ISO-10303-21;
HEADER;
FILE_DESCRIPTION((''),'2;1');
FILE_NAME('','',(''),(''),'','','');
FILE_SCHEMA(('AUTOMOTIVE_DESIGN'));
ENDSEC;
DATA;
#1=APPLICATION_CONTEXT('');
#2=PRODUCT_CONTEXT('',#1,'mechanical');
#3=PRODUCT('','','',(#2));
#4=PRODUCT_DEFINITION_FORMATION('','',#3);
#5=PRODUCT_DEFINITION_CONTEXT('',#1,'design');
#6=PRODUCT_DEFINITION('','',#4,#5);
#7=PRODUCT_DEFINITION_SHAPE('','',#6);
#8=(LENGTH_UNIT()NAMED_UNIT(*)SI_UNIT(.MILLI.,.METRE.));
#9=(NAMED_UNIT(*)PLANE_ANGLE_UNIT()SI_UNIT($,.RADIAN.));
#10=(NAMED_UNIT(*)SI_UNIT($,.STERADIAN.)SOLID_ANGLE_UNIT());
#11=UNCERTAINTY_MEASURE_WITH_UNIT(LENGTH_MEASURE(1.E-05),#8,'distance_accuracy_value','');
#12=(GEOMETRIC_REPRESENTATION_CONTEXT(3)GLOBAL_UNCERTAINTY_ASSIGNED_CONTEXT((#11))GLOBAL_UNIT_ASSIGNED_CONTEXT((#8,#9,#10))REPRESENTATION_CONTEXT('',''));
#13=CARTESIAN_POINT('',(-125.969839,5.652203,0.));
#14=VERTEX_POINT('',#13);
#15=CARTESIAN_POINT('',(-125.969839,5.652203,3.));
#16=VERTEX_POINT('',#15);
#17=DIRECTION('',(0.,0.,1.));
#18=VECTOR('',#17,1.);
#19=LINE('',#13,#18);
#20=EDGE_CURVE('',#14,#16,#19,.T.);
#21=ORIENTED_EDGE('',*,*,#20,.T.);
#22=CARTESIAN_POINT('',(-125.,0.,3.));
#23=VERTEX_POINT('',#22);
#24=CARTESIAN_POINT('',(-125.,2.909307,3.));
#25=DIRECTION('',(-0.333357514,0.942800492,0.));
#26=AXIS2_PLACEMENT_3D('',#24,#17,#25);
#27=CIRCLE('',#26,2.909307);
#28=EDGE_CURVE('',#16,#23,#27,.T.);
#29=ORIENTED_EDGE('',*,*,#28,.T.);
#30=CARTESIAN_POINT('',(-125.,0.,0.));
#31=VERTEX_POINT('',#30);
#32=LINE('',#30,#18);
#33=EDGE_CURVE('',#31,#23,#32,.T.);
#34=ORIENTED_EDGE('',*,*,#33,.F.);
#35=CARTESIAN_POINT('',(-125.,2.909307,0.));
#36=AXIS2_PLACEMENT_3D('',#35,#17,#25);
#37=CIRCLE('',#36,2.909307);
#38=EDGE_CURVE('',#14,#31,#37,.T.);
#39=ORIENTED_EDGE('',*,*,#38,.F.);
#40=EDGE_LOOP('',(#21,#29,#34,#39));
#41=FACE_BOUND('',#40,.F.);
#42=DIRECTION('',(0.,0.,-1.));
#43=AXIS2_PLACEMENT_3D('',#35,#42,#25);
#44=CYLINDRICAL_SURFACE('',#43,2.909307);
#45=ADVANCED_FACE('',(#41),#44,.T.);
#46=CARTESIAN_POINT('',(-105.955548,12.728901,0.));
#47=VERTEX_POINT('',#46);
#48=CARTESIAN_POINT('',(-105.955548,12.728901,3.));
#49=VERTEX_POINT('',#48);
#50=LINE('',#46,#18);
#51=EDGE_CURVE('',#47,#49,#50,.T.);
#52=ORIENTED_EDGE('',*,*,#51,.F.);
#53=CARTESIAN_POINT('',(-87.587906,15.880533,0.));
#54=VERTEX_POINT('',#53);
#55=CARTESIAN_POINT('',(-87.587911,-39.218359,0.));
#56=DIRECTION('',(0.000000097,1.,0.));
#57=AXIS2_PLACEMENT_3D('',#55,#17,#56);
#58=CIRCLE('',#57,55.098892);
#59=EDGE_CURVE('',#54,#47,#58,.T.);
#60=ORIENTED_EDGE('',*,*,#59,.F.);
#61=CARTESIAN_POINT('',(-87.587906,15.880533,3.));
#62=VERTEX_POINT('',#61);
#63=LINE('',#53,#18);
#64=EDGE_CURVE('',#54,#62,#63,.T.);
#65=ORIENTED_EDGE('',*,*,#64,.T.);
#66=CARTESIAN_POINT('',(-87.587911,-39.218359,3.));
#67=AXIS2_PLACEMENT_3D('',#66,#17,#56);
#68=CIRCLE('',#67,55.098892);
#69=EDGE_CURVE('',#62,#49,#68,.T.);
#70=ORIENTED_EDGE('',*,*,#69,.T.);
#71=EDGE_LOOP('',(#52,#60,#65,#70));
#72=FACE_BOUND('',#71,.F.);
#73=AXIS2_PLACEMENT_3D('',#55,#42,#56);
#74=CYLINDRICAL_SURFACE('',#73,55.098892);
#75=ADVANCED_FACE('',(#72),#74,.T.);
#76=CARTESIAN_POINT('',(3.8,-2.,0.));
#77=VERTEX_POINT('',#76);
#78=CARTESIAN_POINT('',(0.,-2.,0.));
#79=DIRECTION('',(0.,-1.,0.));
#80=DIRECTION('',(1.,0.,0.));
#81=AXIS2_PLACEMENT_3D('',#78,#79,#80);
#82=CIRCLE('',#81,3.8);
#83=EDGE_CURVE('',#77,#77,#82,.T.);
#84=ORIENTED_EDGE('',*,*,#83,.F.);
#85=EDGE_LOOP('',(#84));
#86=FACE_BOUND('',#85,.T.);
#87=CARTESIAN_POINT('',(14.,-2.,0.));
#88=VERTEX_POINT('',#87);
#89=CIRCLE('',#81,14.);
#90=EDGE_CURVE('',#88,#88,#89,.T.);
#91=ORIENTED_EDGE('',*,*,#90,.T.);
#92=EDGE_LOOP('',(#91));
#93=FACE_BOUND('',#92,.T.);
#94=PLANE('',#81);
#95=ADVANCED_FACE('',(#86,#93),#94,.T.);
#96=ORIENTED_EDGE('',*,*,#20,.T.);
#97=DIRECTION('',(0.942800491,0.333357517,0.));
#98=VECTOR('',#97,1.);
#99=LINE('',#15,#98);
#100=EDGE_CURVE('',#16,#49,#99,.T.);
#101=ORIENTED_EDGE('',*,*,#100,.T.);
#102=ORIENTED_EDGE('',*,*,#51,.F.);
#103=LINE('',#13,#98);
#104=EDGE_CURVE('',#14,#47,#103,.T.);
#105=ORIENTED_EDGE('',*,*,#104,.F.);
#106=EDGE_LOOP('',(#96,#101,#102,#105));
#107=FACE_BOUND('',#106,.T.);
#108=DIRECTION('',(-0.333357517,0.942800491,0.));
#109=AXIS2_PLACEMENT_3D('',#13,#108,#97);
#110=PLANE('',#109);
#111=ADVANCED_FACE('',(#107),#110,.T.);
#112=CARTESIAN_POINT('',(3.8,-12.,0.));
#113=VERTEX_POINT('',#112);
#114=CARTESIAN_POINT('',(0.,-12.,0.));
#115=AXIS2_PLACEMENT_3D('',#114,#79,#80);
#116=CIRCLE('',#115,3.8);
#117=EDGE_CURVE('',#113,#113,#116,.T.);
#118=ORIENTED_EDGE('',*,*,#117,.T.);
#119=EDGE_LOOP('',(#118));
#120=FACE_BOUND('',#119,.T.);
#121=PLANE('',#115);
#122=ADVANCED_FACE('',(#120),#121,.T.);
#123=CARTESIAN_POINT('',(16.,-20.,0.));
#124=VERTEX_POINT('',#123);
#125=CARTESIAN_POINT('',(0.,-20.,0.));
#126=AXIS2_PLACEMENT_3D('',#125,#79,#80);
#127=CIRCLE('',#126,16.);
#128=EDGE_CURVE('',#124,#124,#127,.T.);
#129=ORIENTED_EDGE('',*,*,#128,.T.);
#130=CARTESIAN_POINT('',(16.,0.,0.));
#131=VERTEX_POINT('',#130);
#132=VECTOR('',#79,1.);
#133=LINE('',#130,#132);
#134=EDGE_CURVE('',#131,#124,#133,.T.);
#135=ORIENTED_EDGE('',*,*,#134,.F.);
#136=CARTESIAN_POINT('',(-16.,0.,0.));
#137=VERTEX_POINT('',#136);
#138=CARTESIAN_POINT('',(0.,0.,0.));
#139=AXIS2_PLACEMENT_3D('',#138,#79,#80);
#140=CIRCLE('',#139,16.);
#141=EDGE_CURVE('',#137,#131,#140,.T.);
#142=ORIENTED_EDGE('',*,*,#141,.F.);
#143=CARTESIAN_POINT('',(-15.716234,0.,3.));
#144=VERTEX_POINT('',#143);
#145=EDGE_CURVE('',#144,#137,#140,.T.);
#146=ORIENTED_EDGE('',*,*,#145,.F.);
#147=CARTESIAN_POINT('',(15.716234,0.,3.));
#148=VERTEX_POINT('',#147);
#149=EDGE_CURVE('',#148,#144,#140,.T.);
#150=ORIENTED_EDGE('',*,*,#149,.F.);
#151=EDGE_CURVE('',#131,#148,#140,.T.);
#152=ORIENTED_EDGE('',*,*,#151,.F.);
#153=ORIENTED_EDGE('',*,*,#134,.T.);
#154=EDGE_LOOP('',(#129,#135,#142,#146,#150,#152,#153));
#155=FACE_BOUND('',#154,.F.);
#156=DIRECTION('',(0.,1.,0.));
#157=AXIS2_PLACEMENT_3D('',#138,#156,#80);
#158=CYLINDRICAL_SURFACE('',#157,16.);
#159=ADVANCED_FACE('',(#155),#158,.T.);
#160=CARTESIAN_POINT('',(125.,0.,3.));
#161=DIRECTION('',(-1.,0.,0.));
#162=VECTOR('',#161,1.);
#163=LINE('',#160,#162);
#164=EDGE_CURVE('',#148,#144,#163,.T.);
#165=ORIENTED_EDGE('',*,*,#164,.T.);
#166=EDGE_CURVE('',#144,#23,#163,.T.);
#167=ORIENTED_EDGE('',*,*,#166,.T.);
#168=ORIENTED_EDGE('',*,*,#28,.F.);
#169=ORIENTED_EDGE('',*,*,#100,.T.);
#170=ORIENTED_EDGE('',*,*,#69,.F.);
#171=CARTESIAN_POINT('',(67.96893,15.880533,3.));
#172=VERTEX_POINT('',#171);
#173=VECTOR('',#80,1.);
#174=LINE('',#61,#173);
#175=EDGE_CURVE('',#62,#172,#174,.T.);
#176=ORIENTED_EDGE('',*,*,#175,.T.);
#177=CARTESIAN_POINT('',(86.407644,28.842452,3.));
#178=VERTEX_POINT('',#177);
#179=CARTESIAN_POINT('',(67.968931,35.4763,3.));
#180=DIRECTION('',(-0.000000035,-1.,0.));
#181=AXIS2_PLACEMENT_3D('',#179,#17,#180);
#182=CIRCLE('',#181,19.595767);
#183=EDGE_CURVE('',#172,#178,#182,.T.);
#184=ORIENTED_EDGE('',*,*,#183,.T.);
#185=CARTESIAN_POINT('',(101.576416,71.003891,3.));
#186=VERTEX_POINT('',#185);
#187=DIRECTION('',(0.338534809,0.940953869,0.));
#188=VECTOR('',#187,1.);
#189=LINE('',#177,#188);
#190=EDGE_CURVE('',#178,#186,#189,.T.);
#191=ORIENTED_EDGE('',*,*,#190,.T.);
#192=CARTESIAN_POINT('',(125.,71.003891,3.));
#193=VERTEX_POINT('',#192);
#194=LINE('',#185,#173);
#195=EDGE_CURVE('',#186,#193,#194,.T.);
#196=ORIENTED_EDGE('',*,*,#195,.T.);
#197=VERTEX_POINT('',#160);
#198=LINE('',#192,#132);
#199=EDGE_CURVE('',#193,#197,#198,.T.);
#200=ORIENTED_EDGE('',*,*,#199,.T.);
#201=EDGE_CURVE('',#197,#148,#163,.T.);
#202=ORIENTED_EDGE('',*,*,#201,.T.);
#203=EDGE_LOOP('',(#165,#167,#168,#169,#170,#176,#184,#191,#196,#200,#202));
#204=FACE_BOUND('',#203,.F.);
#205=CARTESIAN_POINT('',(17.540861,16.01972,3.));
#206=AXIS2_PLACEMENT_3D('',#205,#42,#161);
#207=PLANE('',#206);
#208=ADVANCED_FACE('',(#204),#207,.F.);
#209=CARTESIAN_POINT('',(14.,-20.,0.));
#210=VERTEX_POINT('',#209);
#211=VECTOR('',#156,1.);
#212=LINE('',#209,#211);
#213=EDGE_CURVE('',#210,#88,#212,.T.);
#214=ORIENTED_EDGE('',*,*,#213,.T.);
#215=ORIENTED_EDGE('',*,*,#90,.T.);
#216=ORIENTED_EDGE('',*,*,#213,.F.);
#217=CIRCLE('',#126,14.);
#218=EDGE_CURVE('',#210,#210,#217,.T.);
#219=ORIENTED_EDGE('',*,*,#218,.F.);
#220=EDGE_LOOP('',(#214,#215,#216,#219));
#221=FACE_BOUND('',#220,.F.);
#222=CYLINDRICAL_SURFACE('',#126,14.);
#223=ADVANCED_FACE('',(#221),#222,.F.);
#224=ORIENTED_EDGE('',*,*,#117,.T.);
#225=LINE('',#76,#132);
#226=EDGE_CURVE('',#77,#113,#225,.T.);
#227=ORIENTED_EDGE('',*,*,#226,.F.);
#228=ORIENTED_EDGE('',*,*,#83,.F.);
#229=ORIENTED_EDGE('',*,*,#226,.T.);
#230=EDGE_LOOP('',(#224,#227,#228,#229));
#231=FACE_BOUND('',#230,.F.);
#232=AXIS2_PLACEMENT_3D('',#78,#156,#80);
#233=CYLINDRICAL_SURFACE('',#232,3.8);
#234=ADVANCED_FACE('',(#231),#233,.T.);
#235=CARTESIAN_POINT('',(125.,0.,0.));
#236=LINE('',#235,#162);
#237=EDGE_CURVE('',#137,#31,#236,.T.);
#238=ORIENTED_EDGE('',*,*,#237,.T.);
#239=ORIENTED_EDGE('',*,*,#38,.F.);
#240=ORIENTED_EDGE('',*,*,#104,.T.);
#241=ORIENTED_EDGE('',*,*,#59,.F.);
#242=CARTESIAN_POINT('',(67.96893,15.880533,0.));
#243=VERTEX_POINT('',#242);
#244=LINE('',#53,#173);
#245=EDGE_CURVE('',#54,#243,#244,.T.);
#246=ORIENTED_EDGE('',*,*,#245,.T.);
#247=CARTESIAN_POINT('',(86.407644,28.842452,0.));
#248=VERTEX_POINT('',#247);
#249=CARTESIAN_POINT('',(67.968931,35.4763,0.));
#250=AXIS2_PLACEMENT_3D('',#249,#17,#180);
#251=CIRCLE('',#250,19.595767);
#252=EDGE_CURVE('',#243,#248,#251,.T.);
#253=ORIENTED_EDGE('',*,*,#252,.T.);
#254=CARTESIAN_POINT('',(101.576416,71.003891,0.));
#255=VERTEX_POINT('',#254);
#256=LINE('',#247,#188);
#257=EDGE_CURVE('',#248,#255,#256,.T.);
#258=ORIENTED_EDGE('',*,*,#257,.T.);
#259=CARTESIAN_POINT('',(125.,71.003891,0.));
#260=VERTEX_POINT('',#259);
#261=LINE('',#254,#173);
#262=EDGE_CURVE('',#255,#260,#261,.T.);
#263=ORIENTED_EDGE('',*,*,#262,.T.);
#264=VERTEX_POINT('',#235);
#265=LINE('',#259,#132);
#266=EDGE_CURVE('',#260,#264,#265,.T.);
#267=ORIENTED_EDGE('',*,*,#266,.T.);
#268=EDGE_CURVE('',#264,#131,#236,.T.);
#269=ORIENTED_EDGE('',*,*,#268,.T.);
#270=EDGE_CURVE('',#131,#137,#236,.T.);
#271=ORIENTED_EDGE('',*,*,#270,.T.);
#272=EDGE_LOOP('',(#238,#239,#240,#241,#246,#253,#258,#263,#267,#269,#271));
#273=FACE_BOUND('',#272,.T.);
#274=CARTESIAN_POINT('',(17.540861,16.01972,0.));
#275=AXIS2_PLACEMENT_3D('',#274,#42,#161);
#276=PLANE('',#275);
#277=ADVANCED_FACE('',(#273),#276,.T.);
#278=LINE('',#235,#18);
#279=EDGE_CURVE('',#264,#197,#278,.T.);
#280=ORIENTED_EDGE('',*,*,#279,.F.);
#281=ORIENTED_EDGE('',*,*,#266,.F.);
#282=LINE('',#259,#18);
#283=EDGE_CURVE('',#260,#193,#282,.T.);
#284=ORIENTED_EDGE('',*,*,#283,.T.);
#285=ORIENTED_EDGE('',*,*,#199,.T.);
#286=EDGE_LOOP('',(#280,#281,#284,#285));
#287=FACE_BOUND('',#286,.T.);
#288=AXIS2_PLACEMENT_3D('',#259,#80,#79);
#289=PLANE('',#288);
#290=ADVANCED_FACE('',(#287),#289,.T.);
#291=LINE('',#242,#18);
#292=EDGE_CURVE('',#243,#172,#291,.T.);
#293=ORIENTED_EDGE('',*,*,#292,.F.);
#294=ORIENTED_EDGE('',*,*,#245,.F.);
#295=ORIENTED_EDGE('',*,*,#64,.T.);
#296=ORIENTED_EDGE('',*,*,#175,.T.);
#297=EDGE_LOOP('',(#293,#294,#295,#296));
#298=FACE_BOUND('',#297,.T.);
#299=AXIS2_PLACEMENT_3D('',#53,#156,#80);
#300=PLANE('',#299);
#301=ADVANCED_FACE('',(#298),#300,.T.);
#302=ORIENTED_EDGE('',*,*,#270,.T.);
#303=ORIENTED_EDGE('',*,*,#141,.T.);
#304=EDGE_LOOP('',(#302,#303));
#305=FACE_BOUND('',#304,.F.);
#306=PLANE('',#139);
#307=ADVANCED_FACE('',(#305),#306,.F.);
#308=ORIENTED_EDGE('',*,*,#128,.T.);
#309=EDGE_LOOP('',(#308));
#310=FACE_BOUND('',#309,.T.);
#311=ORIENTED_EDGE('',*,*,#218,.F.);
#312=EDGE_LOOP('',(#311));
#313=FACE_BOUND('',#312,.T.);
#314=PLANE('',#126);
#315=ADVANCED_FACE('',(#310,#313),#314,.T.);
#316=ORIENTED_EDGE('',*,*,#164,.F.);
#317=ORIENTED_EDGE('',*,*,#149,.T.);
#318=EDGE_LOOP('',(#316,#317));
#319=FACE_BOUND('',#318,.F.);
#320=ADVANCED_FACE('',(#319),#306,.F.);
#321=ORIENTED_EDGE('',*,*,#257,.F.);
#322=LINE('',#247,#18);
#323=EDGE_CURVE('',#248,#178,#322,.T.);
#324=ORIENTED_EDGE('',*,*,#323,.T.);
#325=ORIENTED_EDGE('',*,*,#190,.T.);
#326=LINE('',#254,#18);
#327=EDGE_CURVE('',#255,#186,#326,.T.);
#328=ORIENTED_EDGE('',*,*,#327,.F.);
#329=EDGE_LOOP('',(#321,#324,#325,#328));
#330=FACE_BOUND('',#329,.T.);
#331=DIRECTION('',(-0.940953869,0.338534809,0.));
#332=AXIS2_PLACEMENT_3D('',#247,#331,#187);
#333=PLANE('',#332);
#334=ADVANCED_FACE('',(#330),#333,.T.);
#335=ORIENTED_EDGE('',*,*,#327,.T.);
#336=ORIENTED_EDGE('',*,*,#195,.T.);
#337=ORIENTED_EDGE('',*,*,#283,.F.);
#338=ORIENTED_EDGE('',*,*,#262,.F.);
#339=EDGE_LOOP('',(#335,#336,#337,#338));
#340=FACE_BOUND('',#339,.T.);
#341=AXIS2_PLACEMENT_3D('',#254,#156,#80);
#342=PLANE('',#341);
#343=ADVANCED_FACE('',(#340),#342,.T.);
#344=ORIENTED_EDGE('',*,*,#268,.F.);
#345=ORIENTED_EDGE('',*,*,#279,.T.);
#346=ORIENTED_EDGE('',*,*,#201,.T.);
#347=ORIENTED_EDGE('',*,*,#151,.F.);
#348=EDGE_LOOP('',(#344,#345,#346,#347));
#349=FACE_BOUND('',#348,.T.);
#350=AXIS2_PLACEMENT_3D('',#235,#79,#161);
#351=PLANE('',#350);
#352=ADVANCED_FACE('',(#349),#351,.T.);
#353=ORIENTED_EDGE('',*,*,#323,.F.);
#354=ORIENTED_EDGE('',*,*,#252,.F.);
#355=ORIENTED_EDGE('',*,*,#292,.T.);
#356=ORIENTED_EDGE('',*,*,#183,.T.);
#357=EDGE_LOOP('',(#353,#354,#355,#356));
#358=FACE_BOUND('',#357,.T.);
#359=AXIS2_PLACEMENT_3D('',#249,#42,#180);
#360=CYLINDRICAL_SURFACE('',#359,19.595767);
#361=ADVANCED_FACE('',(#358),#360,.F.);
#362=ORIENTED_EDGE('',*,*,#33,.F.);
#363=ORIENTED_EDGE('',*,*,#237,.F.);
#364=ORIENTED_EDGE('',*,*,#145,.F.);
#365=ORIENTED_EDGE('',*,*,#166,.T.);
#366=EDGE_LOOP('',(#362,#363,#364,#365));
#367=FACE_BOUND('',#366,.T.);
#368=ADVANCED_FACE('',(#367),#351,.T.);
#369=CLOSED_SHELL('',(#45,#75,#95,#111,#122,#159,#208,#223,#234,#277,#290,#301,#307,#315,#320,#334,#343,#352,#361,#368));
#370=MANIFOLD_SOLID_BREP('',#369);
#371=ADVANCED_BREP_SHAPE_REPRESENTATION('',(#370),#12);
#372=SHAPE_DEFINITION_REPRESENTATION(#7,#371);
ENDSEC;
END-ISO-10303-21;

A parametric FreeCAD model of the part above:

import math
import FreeCAD as App
import Part
import Sketcher
Q = App.Units.Quantity

doc = App.newDocument("Part")
body = doc.addObject("PartDesign::Body", "Body")

# Sketch on XY plane
sketch1 = doc.addObject("Sketcher::SketchObject", "Sketch")
body.addObject(sketch1)
sketch1.AttachmentSupport = (doc.XY_Plane, [""])
sketch1.MapMode = "FlatFace"
sketch1.addGeometry([
    Part.LineSegment(App.Vector(-106, 12.7, 0), App.Vector(-126, 5.7, 0)),  # 0
    Part.ArcOfCircle(Part.Circle(App.Vector(-125, 2.9, 0), App.Vector(0, 0, 1), 2.9), math.radians(109), math.radians(270)),  # 1
    Part.LineSegment(App.Vector(-125, 0, 0), App.Vector(125, 0, 0)),  # 2
    Part.LineSegment(App.Vector(125, 0, 0), App.Vector(125, 71, 0)),  # 3
    Part.LineSegment(App.Vector(125, 71, 0), App.Vector(101.6, 71, 0)),  # 4
    Part.LineSegment(App.Vector(101.6, 71, 0), App.Vector(86.4, 28.8, 0)),  # 5
    Part.ArcOfCircle(Part.Circle(App.Vector(68, 35.5, 0), App.Vector(0, 0, 1), 19.6), math.radians(-90), math.radians(-20)),  # 6
    Part.LineSegment(App.Vector(68, 15.9, 0), App.Vector(-87.6, 15.9, 0)),  # 7
    Part.ArcOfCircle(Part.Circle(App.Vector(-87.6, -39.2, 0), App.Vector(0, 0, 1), 55.1), math.radians(90), math.radians(109.47)),  # 8
], False)
sketch1.addConstraint([
    Sketcher.Constraint("Tangent", 0, 2, 1, 1),
    Sketcher.Constraint("Tangent", 1, 2, 2, 1),
    Sketcher.Constraint("Coincident", 2, 2, 3, 1),
    Sketcher.Constraint("Coincident", 3, 2, 4, 1),
    Sketcher.Constraint("Coincident", 4, 2, 5, 1),
    Sketcher.Constraint("Tangent", 5, 2, 6, 2),
    Sketcher.Constraint("Tangent", 6, 1, 7, 1),
    Sketcher.Constraint("Tangent", 7, 2, 8, 1),
    Sketcher.Constraint("Tangent", 8, 2, 0, 1),
    Sketcher.Constraint("Horizontal", 2),
    Sketcher.Constraint("Vertical", 3),
    Sketcher.Constraint("Horizontal", 4),
    Sketcher.Constraint("Horizontal", 7),
    Sketcher.Constraint("Symmetric", 1, 2, 2, 2, -1, 1),
    Sketcher.Constraint("DistanceX", 2, 1, 2, 2, Q("250 mm")),
    Sketcher.Constraint("Radius", 8, Q("55.098892 mm")),
    Sketcher.Constraint("Radius", 1, Q("2.909307 mm")),
    Sketcher.Constraint("Radius", 6, Q("19.595767 mm")),
    Sketcher.Constraint("DistanceY", 3, 1, 3, 2, Q("71.003891 mm")),
    Sketcher.Constraint("DistanceY", -1, 1, 6, 3, Q("35.4763 mm")),
    Sketcher.Constraint("DistanceY", -1, 1, 8, 2, Q("12.728901 mm")),
    Sketcher.Constraint("DistanceX", 4, 2, 4, 1, Q("23.423584 mm")),
    Sketcher.Constraint("DistanceX", 7, 2, 7, 1, Q("155.556836 mm")),
])
pad1 = doc.addObject("PartDesign::Pad", "Pad")
body.addObject(pad1)
pad1.Profile = sketch1
pad1.Length = 3

# Sketch on XZ plane
sketch2 = doc.addObject("Sketcher::SketchObject", "Sketch001")
body.addObject(sketch2)
sketch2.AttachmentSupport = (doc.XZ_Plane, [""])
sketch2.MapMode = "FlatFace"
sketch2.addGeometry(Part.Circle(App.Vector(0, 0, 0), App.Vector(0, 0, 1), 16), False)
sketch2.addConstraint([
    Sketcher.Constraint("Coincident", 0, 3, -1, 1),
    Sketcher.Constraint("Diameter", 0, Q("32 mm")),
])
pad2 = doc.addObject("PartDesign::Pad", "Pad001")
body.addObject(pad2)
pad2.Profile = sketch2
pad2.Length = 20

# Sketch on XZ plane
sketch3 = doc.addObject("Sketcher::SketchObject", "Sketch002")
body.addObject(sketch3)
sketch3.AttachmentSupport = (doc.XZ_Plane, [""])
sketch3.MapMode = "FlatFace"
sketch3.AttachmentOffset = App.Placement(App.Vector(0, 0, 20), App.Rotation())
sketch3.addGeometry(Part.Circle(App.Vector(0, 0, 0), App.Vector(0, 0, 1), 14), False)
sketch3.addConstraint([
    Sketcher.Constraint("Coincident", 0, 3, -1, 1),
    Sketcher.Constraint("Diameter", 0, Q("28 mm")),
])
pocket1 = doc.addObject("PartDesign::Pocket", "Pocket")
body.addObject(pocket1)
pocket1.Profile = sketch3
pocket1.Length = 18

# Sketch on XZ plane
sketch4 = doc.addObject("Sketcher::SketchObject", "Sketch003")
body.addObject(sketch4)
sketch4.AttachmentSupport = (doc.XZ_Plane, [""])
sketch4.MapMode = "FlatFace"
sketch4.AttachmentOffset = App.Placement(App.Vector(0, 0, 2), App.Rotation())
sketch4.addGeometry(Part.Circle(App.Vector(0, 0, 0), App.Vector(0, 0, 1), 3.8), False)
sketch4.addConstraint([
    Sketcher.Constraint("Coincident", 0, 3, -1, 1),
    Sketcher.Constraint("Diameter", 0, Q("7.6 mm")),
])
pad3 = doc.addObject("PartDesign::Pad", "Pad002")
body.addObject(pad3)
pad3.Profile = sketch4
pad3.Length = 10

doc.recompute()
